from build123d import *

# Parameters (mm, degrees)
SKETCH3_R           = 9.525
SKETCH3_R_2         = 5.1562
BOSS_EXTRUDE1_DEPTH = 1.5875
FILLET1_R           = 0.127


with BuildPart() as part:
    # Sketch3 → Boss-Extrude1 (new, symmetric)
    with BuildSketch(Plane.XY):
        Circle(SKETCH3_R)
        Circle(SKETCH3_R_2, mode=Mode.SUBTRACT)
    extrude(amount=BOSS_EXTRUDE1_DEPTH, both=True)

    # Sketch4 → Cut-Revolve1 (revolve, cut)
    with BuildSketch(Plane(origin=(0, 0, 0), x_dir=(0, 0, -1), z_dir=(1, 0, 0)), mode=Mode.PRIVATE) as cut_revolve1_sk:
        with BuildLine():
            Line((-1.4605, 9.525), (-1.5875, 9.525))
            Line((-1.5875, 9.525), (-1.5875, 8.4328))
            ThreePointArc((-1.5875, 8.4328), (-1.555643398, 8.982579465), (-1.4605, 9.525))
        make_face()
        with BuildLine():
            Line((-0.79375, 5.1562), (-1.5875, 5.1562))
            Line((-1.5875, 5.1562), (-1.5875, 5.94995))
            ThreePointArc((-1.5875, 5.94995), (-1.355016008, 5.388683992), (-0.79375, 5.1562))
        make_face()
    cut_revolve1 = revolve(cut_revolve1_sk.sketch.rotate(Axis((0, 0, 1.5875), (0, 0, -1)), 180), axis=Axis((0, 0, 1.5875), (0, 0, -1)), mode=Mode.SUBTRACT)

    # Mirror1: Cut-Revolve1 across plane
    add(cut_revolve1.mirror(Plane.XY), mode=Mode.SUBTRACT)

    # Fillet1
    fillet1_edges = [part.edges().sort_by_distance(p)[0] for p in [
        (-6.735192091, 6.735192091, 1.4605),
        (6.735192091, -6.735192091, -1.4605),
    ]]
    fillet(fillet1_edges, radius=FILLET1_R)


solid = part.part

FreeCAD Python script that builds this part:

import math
import FreeCAD as App
import Part
import Sketcher
from FreeCAD import Vector
Q = App.Units.Quantity


def edges_at(feature, points):
    """Names of the edges that pass closest to the given points."""
    edges = feature.Shape.Edges
    near = lambda p: min(range(len(edges)), key=lambda i: edges[i].distToShape(Part.Vertex(*p))[0])
    return sorted({f"Edge{near(p) + 1}" for p in points})

doc = App.newDocument("Part")
body = doc.addObject("PartDesign::Body", "Body")

sketch1 = doc.addObject("Sketcher::SketchObject", "Sketch")
body.addObject(sketch1)
sketch1.AttachmentSupport = (doc.XY_Plane, [""])
sketch1.MapMode = "FlatFace"
sketch1.addGeometry([
    Part.Circle(Vector(0, 0, 0), Vector(0, 0, 1), 9.525),
    Part.Circle(Vector(0, 0, 0), Vector(0, 0, 1), 5.1562),
], False)
sketch1.addConstraint([
    Sketcher.Constraint("Coincident", 0, 3, -1, 1),
    Sketcher.Constraint("Coincident", 1, 3, -1, 1),
    Sketcher.Constraint("Diameter", 0, Q("0.75 in")),
    Sketcher.Constraint("Diameter", 1, Q("0.406 in")),
])
pad1 = doc.addObject("PartDesign::Pad", "Pad")
body.addObject(pad1)
pad1.Profile = sketch1
pad1.Length = Q("0.125 in")
pad1.Midplane = True

sketch2 = doc.addObject("Sketcher::SketchObject", "Sketch001")
body.addObject(sketch2)
sketch2.AttachmentSupport = (doc.YZ_Plane, [""])
sketch2.MapMode = "FlatFace"
sketch2.addGeometry([
    Part.LineSegment(Vector(9.525, 1.4605, 0), Vector(9.525, 1.5875, 0)),
    Part.LineSegment(Vector(9.525, 1.5875, 0), Vector(8.4328, 1.5875, 0)),
    Part.ArcOfCircle(Part.Circle(Vector(8.4328, -3.17246, 0), Vector(0, 0, 1), 4.75996), math.radians(76.734971), math.radians(90)),
    Part.LineSegment(Vector(5.1562, 1.5875, 0), Vector(5.1562, 0.79375, 0)),
    Part.ArcOfCircle(Part.Circle(Vector(5.94995, 0.79375, 0), Vector(0, 0, 1), 0.79375), math.radians(90), math.radians(180)),
    Part.LineSegment(Vector(5.94995, 1.5875, 0), Vector(5.1562, 1.5875, 0)),
], False)
sketch2.addConstraint([
    Sketcher.Constraint("Coincident", 0, 2, 1, 1),
    Sketcher.Constraint("Tangent", 1, 2, 2, 2),
    Sketcher.Constraint("Coincident", 2, 1, 0, 1),
    Sketcher.Constraint("Tangent", 3, 2, 4, 2),
    Sketcher.Constraint("Tangent", 4, 1, 5, 1),
    Sketcher.Constraint("Coincident", 5, 2, 3, 1),
    Sketcher.Constraint("Vertical", 0),
    Sketcher.Constraint("Horizontal", 1),
    Sketcher.Constraint("Vertical", 3),
    Sketcher.Constraint("Horizontal", 5),
    Sketcher.Constraint("Horizontal", 1, 2, 4, 1),
    Sketcher.Constraint("Radius", 4, Q("0.03125 in")),
    Sketcher.Constraint("Radius", 2, Q("0.1874 in")),
    Sketcher.Constraint("DistanceX", 1, 2, 1, 1, Q("0.043 in")),
    Sketcher.Constraint("DistanceX", -1, 1, 2, 3, Q("0.332 in")),
    Sketcher.Constraint("DistanceY", -1, 1, 4, 3, Q("0.03125 in")),
    Sketcher.Constraint("DistanceX", -1, 1, 3, 2, Q("0.203 in")),
])
groove = doc.addObject("PartDesign::Groove", "Groove")
body.addObject(groove)
groove.Profile = sketch2
groove.ReferenceAxis = (sketch2, ["V_Axis"])
groove.Angle = 360
doc.recompute()

mirrored = doc.addObject("PartDesign::Mirrored", "Mirrored")
body.addObject(mirrored)
mirrored.Originals = [groove]
mirrored.MirrorPlane = (doc.XY_Plane, [""])
body.Tip = mirrored
doc.recompute()

fillet = doc.addObject("PartDesign::Fillet", "Fillet")
body.addObject(fillet)
fillet.Base = (mirrored, edges_at(mirrored, [(-6.735, 6.735, 1.46), (6.735, -6.735, -1.46)]))
fillet.Radius = Q("0.005 in")

doc.recompute()
